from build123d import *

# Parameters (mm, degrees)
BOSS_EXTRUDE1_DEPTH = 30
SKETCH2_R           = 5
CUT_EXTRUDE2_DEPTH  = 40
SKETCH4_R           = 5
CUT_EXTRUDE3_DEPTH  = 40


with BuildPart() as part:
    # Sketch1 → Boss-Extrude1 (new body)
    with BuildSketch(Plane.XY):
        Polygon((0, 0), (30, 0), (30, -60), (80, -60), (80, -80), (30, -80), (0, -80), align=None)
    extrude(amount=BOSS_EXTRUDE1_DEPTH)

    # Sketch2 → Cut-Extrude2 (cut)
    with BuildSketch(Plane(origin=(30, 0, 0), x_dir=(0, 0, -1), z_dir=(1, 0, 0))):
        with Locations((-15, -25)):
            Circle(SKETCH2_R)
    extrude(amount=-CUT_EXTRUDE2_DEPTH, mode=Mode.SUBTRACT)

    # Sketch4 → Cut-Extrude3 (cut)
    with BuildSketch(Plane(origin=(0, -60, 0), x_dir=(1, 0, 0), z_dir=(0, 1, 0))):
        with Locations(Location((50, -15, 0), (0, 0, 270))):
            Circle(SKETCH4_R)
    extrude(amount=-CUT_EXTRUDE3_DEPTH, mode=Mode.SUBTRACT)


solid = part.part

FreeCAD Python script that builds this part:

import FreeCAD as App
import Part
import Sketcher

V = App.Vector
Q = App.Units.Quantity


def add_polygon(sketch, points):
    """Adds a closed chain of lines whose ends are joined by coincident constraints."""
    first, n = sketch.GeometryCount, len(points)
    for a, b in zip(points, points[1:] + points[:1]):
        sketch.addGeometry(Part.LineSegment(App.Vector(*a, 0), App.Vector(*b, 0)), False)
    for i in range(n):
        sketch.addConstraint(Sketcher.Constraint("Coincident", first + i, 2, first + (i + 1) % n, 1))

doc = App.newDocument("Part")
params = doc.addObject("Spreadsheet::Sheet", "Params")
for row, (alias, value) in enumerate([
    ("sketch1_width", "30 mm"),
    ("sketch1_width2", "80 mm"),
    ("sketch1_height", "20 mm"),
    ("pad1_length", "30 mm"),
    ("sketch2_diameter", "10 mm"),
    ("pocket1_length", "40 mm"),
    ("sketch3_diameter", "10 mm"),
    ("pocket2_length", "40 mm"),
], start=1):
    params.set(f"A{row}", alias)
    params.set(f"B{row}", "=" + value)
    params.setAlias(f"B{row}", alias)

body = doc.addObject("PartDesign::Body", "Body")

# Sketch on XY plane
sketch1 = body.newObject("Sketcher::SketchObject", "Sketch")
sketch1.AttachmentSupport = (doc.getObject("XY_Plane"), [""])
sketch1.MapMode = "FlatFace"
add_polygon(sketch1, [(30, 0), (0, 0), (0, -80), (80, -80), (80, -60), (30, -60)])  # lines 0-5
sketch1.addConstraint([
    Sketcher.Constraint("Horizontal", 0),
    Sketcher.Constraint("Vertical", 1),
    Sketcher.Constraint("Horizontal", 2),
    Sketcher.Constraint("Vertical", 3),
    Sketcher.Constraint("Horizontal", 4),
    Sketcher.Constraint("Vertical", 5),
    Sketcher.Constraint("Coincident", 0, 2, -1, 1),
    Sketcher.Constraint("Equal", 2, 1),
    Sketcher.Constraint("DistanceX", 0, 2, 0, 1, Q("30 mm")),
    Sketcher.Constraint("DistanceX", 2, 1, 2, 2, Q("80 mm")),
    Sketcher.Constraint("DistanceY", 3, 1, 3, 2, Q("20 mm")),
])
sketch1.setExpression("Constraints[14]", "Params.sketch1_width")
sketch1.setExpression("Constraints[15]", "Params.sketch1_width2")
sketch1.setExpression("Constraints[16]", "Params.sketch1_height")
pad1 = body.newObject("PartDesign::Pad", "Pad")
pad1.Profile = sketch1
pad1.setExpression("Length", "Params.pad1_length")

# Sketch on YZ plane
sketch2 = body.newObject("Sketcher::SketchObject", "Sketch001")
sketch2.AttachmentSupport = (doc.getObject("YZ_Plane"), [""])
sketch2.MapMode = "FlatFace"
sketch2.AttachmentOffset = App.Placement(V(0, 0, 30), App.Rotation())
sketch2.addGeometry(Part.Circle(V(-25, 15, 0), V(0, 0, 1), 5), False)
sketch2.addConstraint([
    Sketcher.Constraint("Diameter", 0, Q("10 mm")),
    Sketcher.Constraint("DistanceX", 0, 3, -1, 1, Q("25 mm")),
    Sketcher.Constraint("DistanceY", -1, 1, 0, 3, Q("15 mm")),
])
sketch2.setExpression("Constraints[0]", "Params.sketch2_diameter")
pocket1 = body.newObject("PartDesign::Pocket", "Pocket")
pocket1.Profile = sketch2
pocket1.setExpression("Length", "Params.pocket1_length")

# Sketch on XZ plane
sketch3 = body.newObject("Sketcher::SketchObject", "Sketch002")
sketch3.AttachmentSupport = (doc.getObject("XZ_Plane"), [""])
sketch3.MapMode = "FlatFace"
sketch3.AttachmentOffset = App.Placement(V(0, 0, 60), App.Rotation())
sketch3.addGeometry(Part.Circle(V(50, 15, 0), V(0, 0, 1), 5), False)
sketch3.addConstraint([
    Sketcher.Constraint("Diameter", 0, Q("10 mm")),
    Sketcher.Constraint("DistanceX", -1, 1, 0, 3, Q("50 mm")),
    Sketcher.Constraint("DistanceY", -1, 1, 0, 3, Q("15 mm")),
])
sketch3.setExpression("Constraints[0]", "Params.sketch3_diameter")
pocket2 = body.newObject("PartDesign::Pocket", "Pocket001")
pocket2.Profile = sketch3
pocket2.setExpression("Length", "Params.pocket2_length")
pocket2.Reversed = True

doc.recompute()
